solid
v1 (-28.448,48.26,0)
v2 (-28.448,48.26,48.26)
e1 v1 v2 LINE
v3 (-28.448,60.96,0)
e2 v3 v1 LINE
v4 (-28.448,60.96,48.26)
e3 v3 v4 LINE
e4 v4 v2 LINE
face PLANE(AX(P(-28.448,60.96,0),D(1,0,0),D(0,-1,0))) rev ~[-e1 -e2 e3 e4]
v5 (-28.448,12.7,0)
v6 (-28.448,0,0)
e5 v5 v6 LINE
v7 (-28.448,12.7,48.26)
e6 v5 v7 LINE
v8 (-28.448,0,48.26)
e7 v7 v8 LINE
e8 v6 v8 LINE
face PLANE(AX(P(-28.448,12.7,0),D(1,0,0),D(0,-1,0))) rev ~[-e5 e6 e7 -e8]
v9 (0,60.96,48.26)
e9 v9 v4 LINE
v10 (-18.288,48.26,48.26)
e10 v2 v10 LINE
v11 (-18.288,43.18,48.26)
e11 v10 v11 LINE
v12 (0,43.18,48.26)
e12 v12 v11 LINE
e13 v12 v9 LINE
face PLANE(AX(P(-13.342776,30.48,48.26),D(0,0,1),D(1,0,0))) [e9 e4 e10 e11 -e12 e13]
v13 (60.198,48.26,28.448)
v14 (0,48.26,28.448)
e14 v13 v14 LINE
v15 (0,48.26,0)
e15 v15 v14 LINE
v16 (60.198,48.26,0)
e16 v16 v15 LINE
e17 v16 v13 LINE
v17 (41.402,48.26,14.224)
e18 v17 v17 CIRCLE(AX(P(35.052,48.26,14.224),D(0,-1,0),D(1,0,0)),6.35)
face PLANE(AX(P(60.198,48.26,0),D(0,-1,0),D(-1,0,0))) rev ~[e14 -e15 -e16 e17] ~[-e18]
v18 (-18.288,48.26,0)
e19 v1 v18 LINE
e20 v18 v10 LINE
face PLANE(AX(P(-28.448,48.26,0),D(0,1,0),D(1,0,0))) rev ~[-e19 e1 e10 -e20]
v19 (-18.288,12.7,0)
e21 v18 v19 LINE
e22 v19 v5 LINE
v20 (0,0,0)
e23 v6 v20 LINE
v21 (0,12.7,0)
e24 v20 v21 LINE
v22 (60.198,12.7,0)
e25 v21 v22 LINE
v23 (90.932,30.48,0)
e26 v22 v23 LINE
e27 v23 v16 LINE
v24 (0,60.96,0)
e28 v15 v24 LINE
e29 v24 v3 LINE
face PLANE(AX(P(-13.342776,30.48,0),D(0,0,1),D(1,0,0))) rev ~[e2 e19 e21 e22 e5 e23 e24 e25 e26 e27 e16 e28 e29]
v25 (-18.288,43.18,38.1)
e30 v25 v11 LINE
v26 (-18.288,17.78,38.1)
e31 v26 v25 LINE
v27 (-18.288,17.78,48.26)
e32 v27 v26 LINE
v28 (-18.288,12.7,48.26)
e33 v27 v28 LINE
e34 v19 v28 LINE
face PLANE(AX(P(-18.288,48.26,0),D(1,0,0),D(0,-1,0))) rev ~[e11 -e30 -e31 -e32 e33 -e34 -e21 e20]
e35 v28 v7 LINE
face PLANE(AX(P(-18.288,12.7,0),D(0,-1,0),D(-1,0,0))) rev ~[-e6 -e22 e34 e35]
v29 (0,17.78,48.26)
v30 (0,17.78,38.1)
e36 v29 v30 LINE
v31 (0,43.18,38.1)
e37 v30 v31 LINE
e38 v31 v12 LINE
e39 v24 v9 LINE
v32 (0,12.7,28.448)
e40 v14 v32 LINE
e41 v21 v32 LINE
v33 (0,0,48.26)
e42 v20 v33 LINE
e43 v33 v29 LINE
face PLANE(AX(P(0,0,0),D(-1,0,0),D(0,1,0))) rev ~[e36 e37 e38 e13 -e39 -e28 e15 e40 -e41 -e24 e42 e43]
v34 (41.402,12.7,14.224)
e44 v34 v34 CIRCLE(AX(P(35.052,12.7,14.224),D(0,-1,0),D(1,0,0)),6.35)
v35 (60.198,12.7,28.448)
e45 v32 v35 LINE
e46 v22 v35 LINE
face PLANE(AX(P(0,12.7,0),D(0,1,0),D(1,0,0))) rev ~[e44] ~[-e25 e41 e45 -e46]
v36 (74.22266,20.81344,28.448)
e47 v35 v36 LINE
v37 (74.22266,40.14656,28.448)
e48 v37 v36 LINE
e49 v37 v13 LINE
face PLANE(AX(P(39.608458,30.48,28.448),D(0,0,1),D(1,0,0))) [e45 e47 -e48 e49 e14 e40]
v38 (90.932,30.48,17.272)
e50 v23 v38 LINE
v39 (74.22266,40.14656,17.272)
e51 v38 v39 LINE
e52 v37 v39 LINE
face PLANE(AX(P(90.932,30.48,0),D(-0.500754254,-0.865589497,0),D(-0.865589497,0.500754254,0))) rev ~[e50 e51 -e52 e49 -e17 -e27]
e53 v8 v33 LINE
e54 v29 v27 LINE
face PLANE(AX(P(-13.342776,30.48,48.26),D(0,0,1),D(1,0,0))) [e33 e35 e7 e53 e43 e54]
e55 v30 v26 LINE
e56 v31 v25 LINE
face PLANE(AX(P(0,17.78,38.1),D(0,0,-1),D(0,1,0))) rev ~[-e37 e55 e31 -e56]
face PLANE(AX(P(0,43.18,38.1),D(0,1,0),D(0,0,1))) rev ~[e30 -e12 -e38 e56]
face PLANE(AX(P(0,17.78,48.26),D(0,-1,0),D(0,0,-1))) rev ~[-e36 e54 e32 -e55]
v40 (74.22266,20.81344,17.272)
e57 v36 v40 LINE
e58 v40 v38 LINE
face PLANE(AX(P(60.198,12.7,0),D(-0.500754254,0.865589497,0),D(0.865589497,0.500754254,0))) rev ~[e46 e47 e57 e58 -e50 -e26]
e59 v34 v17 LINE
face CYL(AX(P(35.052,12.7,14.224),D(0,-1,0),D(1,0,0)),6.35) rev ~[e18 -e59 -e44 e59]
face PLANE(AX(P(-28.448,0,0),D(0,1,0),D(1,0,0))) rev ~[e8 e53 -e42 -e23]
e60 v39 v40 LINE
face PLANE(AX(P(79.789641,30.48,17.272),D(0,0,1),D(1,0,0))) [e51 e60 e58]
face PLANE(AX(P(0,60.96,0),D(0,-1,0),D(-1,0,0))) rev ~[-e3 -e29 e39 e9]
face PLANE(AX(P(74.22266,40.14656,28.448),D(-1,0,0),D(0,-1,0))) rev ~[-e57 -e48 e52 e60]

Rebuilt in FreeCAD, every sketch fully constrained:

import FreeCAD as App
import Part
import Sketcher

V = App.Vector
Q = App.Units.Quantity


def add_polygon(sketch, points):
    """Adds a closed chain of lines whose ends are joined by coincident constraints."""
    first, n = sketch.GeometryCount, len(points)
    for a, b in zip(points, points[1:] + points[:1]):
        sketch.addGeometry(Part.LineSegment(App.Vector(*a, 0), App.Vector(*b, 0)), False)
    for i in range(n):
        sketch.addConstraint(Sketcher.Constraint("Coincident", first + i, 2, first + (i + 1) % n, 1))

doc = App.newDocument("Part")
params = doc.addObject("Spreadsheet::Sheet", "Params")
for row, (alias, value) in enumerate([
    ("sketch1_width", "0.4 in"),
    ("sketch1_height", "2.4 in"),
    ("sketch1_height2", "0.5 in"),
    ("sketch1_width2", "1.12 in"),
    ("pad1_length", "1.9 in"),
    ("sketch2_width", "1 in"),
    ("sketch2_height", "0.4 in"),
    ("sketch3_height", "1.4 in"),
    ("sketch3_width", "2.37 in"),
    ("pad2_length", "1.12 in"),
    ("sketch4_length", "0.76 in"),
    ("pocket2_length", "0.44 in"),
    ("sketch5_diameter", "0.5 in"),
], start=1):
    params.set(f"A{row}", alias)
    params.set(f"B{row}", "=" + value)
    params.setAlias(f"B{row}", alias)

body = doc.addObject("PartDesign::Body", "Body")

sketch1 = body.newObject("Sketcher::SketchObject", "Sketch")
sketch1.AttachmentSupport = (doc.getObject("XY_Plane"), [""])
sketch1.MapMode = "FlatFace"
add_polygon(sketch1, [(-28, 0), (0, 0), (0, 61), (-28, 61), (-28, 48), (-18, 48), (-18, 13), (-28, 13)])
sketch1.addConstraint(Sketcher.Constraint("Horizontal", 0))
sketch1.addConstraint(Sketcher.Constraint("Vertical", 1))
sketch1.addConstraint(Sketcher.Constraint("Horizontal", 2))
sketch1.addConstraint(Sketcher.Constraint("Vertical", 3))
sketch1.addConstraint(Sketcher.Constraint("Horizontal", 4))
sketch1.addConstraint(Sketcher.Constraint("Vertical", 5))
sketch1.addConstraint(Sketcher.Constraint("Horizontal", 6))
sketch1.addConstraint(Sketcher.Constraint("Vertical", 7))
sketch1.addConstraint(Sketcher.Constraint("Coincident", 0, 2, -1, 1))
sketch1.addConstraint(Sketcher.Constraint("Vertical", 3, 2, 6, 2))
sketch1.addConstraint(Sketcher.Constraint("Equal", 3, 7))
sketch1.addConstraint(Sketcher.Constraint("DistanceX", 4, 1, 4, 2, Q("0.4 in")))
sketch1.addConstraint(Sketcher.Constraint("DistanceY", 1, 1, 1, 2, Q("2.4 in")))
sketch1.addConstraint(Sketcher.Constraint("DistanceY", 3, 2, 3, 1, Q("0.5 in")))
sketch1.addConstraint(Sketcher.Constraint("DistanceX", 0, 1, 0, 2, Q("1.12 in")))
sketch1.setExpression("Constraints[19]", "Params.sketch1_width")
sketch1.setExpression("Constraints[20]", "Params.sketch1_height")
sketch1.setExpression("Constraints[21]", "Params.sketch1_height2")
sketch1.setExpression("Constraints[22]", "Params.sketch1_width2")
pad1 = body.newObject("PartDesign::Pad", "Pad")
pad1.Profile = sketch1
pad1.setExpression("Length", "Params.pad1_length")

sketch2 = body.newObject("Sketcher::SketchObject", "Sketch001")
sketch2.AttachmentSupport = (doc.getObject("YZ_Plane"), [""])
sketch2.MapMode = "FlatFace"
add_polygon(sketch2, [(18, 38), (43, 38), (43, 48), (18, 48)])
sketch2.addConstraint(Sketcher.Constraint("Horizontal", 0))
sketch2.addConstraint(Sketcher.Constraint("Vertical", 1))
sketch2.addConstraint(Sketcher.Constraint("Horizontal", 2))
sketch2.addConstraint(Sketcher.Constraint("Vertical", 3))
sketch2.addConstraint(Sketcher.Constraint("DistanceX", 0, 1, 0, 2, Q("1 in")))
sketch2.addConstraint(Sketcher.Constraint("DistanceY", 1, 1, 1, 2, Q("0.4 in")))
sketch2.addConstraint(Sketcher.Constraint("DistanceX", -1, 1, 0, 2, Q("1.7 in")))
sketch2.addConstraint(Sketcher.Constraint("DistanceY", -1, 1, 0, 2, Q("1.5 in")))
sketch2.setExpression("Constraints[8]", "Params.sketch2_width")
sketch2.setExpression("Constraints[9]", "Params.sketch2_height")
pocket1 = body.newObject("PartDesign::Pocket", "Pocket")
pocket1.Profile = sketch2
pocket1.Type = "ThroughAll"

sketch3 = body.newObject("Sketcher::SketchObject", "Sketch002")
sketch3.AttachmentSupport = (doc.getObject("XY_Plane"), [""])
sketch3.MapMode = "FlatFace"
add_polygon(sketch3, [(0, 13), (60, 13), (91, 30), (60, 48), (0, 48)])
sketch3.addConstraint(Sketcher.Constraint("Horizontal", 0))
sketch3.addConstraint(Sketcher.Constraint("Horizontal", 3))
sketch3.addConstraint(Sketcher.Constraint("Vertical", 4))
sketch3.addConstraint(Sketcher.Constraint("PointOnObject", 3, 2, -2))
sketch3.addConstraint(Sketcher.Constraint("Vertical", 0, 2, 2, 2))
sketch3.addConstraint(Sketcher.Constraint("Equal", 1, 2))
sketch3.addConstraint(Sketcher.Constraint("DistanceY", 4, 2, 4, 1, Q("1.4 in")))
sketch3.addConstraint(Sketcher.Constraint("DistanceX", 0, 1, 0, 2, Q("2.37 in")))
sketch3.addConstraint(Sketcher.Constraint("DistanceY", -1, 1, 0, 2, Q("0.5 in")))
sketch3.addConstraint(Sketcher.Constraint("DistanceX", -1, 1, 1, 2, Q("3.58 in")))
sketch3.setExpression("Constraints[11]", "Params.sketch3_height")
sketch3.setExpression("Constraints[12]", "Params.sketch3_width")
pad2 = body.newObject("PartDesign::Pad", "Pad001")
pad2.Profile = sketch3
pad2.setExpression("Length", "Params.pad2_length")

sketch4 = body.newObject("Sketcher::SketchObject", "Sketch003")
sketch4.AttachmentSupport = (doc.getObject("XY_Plane"), [""])
sketch4.MapMode = "FlatFace"
sketch4.AttachmentOffset = App.Placement(V(0, 0, 1.12 * 25.4), App.Rotation())
add_polygon(sketch4, [(74, 21), (91, 30), (74, 40)])
sketch4.addConstraint(Sketcher.Constraint("Vertical", 2))
sketch4.addConstraint(Sketcher.Constraint("Equal", 0, 1))
sketch4.addConstraint(Sketcher.Constraint("DistanceY", -1, 1, 0, 2, Q("1.2 in")))
sketch4.addConstraint(Sketcher.Constraint("Distance", 0, Q("0.76 in")))
sketch4.addConstraint(Sketcher.Constraint("DistanceX", -1, 1, 0, 2, Q("3.58 in")))
sketch4.addConstraint(Sketcher.Constraint("DistanceY", 2, 2, 2, 1, Q("19.33312 mm")))
sketch4.setExpression("Constraints[6]", "Params.sketch4_length")
pocket2 = body.newObject("PartDesign::Pocket", "Pocket001")
pocket2.Profile = sketch4
pocket2.setExpression("Length", "Params.pocket2_length")

sketch5 = body.newObject("Sketcher::SketchObject", "Sketch004")
sketch5.AttachmentSupport = (doc.getObject("XZ_Plane"), [""])
sketch5.MapMode = "FlatFace"
sketch5.AttachmentOffset = App.Placement(V(0, 0, -0.5 * 25.4), App.Rotation())
sketch5.addGeometry(Part.Circle(V(35, 14, 0), V(0, 0, 1), 6), False)
sketch5.addConstraint(Sketcher.Constraint("Diameter", 0, Q("0.5 in")))
sketch5.addConstraint(Sketcher.Constraint("DistanceX", -1, 1, 0, 3, Q("1.38 in")))
sketch5.addConstraint(Sketcher.Constraint("DistanceY", -1, 1, 0, 3, Q("0.56 in")))
sketch5.setExpression("Constraints[0]", "Params.sketch5_diameter")
pocket3 = body.newObject("PartDesign::Pocket", "Pocket002")
pocket3.Profile = sketch5
pocket3.Type = "ThroughAll"

doc.recompute()
